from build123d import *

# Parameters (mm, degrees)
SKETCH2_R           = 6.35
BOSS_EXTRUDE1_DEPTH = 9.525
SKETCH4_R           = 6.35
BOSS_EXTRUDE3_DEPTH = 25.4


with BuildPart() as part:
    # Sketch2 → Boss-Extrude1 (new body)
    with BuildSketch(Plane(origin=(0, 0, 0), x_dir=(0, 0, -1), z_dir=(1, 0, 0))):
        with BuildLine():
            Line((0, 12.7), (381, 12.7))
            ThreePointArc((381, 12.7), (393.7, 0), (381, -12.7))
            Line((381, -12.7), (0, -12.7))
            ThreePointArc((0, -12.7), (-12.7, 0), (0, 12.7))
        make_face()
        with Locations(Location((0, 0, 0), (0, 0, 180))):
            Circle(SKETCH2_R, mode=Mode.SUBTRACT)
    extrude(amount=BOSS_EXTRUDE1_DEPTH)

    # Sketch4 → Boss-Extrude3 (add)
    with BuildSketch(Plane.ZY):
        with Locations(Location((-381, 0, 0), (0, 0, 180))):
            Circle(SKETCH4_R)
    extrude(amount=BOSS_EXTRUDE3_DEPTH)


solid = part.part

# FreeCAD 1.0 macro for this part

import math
import FreeCAD as App
import Part
import Sketcher
Q = App.Units.Quantity

doc = App.newDocument("Part")
body = doc.addObject("PartDesign::Body", "Body")

# Sketch on YZ plane
sketch1 = body.newObject("Sketcher::SketchObject", "Sketch")
sketch1.AttachmentSupport = (doc.getObject("YZ_Plane"), [""])
sketch1.MapMode = "FlatFace"
sketch1.addGeometry([
    Part.LineSegment(App.Vector(13, -381, 0), App.Vector(13, 0, 0)),  # 0
    Part.ArcOfCircle(Part.Circle(App.Vector(0, 0, 0), App.Vector(0, 0, 1), 13), math.radians(0), math.radians(180)),  # 1
    Part.LineSegment(App.Vector(-13, 0, 0), App.Vector(-13, -381, 0)),  # 2
    Part.ArcOfCircle(Part.Circle(App.Vector(0, -381, 0), App.Vector(0, 0, 1), 13), math.radians(180), math.radians(360)),  # 3
    Part.Circle(App.Vector(0, 0, 0), App.Vector(0, 0, 1), 6),  # 4
], False)
sketch1.addConstraint([
    Sketcher.Constraint("Tangent", 0, 2, 1, 1),
    Sketcher.Constraint("Tangent", 1, 2, 2, 1),
    Sketcher.Constraint("Tangent", 2, 2, 3, 1),
    Sketcher.Constraint("Tangent", 3, 2, 0, 1),
    Sketcher.Constraint("Vertical", 0),
    Sketcher.Constraint("Vertical", 2),
    Sketcher.Constraint("Coincident", 1, 3, -1, 1),
    Sketcher.Constraint("Coincident", 4, 3, -1, 1),
    Sketcher.Constraint("Diameter", 4, Q("0.5 in")),
    Sketcher.Constraint("Radius", 1, Q("0.5 in")),
    Sketcher.Constraint("DistanceY", 0, 1, 0, 2, Q("15 in")),
])
pad1 = body.newObject("PartDesign::Pad", "Pad")
pad1.Profile = sketch1
pad1.Length = Q("0.375 in")

# Sketch on YZ plane
sketch2 = body.newObject("Sketcher::SketchObject", "Sketch001")
sketch2.AttachmentSupport = (doc.getObject("YZ_Plane"), [""])
sketch2.MapMode = "FlatFace"
sketch2.addGeometry(Part.Circle(App.Vector(0, -381, 0), App.Vector(0, 0, 1), 6), False)
sketch2.addConstraint([
    Sketcher.Constraint("PointOnObject", 0, 3, -2),
    Sketcher.Constraint("Diameter", 0, Q("0.5 in")),
    Sketcher.Constraint("DistanceY", 0, 3, -1, 1, Q("15 in")),
])
pad2 = body.newObject("PartDesign::Pad", "Pad001")
pad2.Profile = sketch2
pad2.Length = Q("1 in")
pad2.Reversed = True

doc.recompute()
